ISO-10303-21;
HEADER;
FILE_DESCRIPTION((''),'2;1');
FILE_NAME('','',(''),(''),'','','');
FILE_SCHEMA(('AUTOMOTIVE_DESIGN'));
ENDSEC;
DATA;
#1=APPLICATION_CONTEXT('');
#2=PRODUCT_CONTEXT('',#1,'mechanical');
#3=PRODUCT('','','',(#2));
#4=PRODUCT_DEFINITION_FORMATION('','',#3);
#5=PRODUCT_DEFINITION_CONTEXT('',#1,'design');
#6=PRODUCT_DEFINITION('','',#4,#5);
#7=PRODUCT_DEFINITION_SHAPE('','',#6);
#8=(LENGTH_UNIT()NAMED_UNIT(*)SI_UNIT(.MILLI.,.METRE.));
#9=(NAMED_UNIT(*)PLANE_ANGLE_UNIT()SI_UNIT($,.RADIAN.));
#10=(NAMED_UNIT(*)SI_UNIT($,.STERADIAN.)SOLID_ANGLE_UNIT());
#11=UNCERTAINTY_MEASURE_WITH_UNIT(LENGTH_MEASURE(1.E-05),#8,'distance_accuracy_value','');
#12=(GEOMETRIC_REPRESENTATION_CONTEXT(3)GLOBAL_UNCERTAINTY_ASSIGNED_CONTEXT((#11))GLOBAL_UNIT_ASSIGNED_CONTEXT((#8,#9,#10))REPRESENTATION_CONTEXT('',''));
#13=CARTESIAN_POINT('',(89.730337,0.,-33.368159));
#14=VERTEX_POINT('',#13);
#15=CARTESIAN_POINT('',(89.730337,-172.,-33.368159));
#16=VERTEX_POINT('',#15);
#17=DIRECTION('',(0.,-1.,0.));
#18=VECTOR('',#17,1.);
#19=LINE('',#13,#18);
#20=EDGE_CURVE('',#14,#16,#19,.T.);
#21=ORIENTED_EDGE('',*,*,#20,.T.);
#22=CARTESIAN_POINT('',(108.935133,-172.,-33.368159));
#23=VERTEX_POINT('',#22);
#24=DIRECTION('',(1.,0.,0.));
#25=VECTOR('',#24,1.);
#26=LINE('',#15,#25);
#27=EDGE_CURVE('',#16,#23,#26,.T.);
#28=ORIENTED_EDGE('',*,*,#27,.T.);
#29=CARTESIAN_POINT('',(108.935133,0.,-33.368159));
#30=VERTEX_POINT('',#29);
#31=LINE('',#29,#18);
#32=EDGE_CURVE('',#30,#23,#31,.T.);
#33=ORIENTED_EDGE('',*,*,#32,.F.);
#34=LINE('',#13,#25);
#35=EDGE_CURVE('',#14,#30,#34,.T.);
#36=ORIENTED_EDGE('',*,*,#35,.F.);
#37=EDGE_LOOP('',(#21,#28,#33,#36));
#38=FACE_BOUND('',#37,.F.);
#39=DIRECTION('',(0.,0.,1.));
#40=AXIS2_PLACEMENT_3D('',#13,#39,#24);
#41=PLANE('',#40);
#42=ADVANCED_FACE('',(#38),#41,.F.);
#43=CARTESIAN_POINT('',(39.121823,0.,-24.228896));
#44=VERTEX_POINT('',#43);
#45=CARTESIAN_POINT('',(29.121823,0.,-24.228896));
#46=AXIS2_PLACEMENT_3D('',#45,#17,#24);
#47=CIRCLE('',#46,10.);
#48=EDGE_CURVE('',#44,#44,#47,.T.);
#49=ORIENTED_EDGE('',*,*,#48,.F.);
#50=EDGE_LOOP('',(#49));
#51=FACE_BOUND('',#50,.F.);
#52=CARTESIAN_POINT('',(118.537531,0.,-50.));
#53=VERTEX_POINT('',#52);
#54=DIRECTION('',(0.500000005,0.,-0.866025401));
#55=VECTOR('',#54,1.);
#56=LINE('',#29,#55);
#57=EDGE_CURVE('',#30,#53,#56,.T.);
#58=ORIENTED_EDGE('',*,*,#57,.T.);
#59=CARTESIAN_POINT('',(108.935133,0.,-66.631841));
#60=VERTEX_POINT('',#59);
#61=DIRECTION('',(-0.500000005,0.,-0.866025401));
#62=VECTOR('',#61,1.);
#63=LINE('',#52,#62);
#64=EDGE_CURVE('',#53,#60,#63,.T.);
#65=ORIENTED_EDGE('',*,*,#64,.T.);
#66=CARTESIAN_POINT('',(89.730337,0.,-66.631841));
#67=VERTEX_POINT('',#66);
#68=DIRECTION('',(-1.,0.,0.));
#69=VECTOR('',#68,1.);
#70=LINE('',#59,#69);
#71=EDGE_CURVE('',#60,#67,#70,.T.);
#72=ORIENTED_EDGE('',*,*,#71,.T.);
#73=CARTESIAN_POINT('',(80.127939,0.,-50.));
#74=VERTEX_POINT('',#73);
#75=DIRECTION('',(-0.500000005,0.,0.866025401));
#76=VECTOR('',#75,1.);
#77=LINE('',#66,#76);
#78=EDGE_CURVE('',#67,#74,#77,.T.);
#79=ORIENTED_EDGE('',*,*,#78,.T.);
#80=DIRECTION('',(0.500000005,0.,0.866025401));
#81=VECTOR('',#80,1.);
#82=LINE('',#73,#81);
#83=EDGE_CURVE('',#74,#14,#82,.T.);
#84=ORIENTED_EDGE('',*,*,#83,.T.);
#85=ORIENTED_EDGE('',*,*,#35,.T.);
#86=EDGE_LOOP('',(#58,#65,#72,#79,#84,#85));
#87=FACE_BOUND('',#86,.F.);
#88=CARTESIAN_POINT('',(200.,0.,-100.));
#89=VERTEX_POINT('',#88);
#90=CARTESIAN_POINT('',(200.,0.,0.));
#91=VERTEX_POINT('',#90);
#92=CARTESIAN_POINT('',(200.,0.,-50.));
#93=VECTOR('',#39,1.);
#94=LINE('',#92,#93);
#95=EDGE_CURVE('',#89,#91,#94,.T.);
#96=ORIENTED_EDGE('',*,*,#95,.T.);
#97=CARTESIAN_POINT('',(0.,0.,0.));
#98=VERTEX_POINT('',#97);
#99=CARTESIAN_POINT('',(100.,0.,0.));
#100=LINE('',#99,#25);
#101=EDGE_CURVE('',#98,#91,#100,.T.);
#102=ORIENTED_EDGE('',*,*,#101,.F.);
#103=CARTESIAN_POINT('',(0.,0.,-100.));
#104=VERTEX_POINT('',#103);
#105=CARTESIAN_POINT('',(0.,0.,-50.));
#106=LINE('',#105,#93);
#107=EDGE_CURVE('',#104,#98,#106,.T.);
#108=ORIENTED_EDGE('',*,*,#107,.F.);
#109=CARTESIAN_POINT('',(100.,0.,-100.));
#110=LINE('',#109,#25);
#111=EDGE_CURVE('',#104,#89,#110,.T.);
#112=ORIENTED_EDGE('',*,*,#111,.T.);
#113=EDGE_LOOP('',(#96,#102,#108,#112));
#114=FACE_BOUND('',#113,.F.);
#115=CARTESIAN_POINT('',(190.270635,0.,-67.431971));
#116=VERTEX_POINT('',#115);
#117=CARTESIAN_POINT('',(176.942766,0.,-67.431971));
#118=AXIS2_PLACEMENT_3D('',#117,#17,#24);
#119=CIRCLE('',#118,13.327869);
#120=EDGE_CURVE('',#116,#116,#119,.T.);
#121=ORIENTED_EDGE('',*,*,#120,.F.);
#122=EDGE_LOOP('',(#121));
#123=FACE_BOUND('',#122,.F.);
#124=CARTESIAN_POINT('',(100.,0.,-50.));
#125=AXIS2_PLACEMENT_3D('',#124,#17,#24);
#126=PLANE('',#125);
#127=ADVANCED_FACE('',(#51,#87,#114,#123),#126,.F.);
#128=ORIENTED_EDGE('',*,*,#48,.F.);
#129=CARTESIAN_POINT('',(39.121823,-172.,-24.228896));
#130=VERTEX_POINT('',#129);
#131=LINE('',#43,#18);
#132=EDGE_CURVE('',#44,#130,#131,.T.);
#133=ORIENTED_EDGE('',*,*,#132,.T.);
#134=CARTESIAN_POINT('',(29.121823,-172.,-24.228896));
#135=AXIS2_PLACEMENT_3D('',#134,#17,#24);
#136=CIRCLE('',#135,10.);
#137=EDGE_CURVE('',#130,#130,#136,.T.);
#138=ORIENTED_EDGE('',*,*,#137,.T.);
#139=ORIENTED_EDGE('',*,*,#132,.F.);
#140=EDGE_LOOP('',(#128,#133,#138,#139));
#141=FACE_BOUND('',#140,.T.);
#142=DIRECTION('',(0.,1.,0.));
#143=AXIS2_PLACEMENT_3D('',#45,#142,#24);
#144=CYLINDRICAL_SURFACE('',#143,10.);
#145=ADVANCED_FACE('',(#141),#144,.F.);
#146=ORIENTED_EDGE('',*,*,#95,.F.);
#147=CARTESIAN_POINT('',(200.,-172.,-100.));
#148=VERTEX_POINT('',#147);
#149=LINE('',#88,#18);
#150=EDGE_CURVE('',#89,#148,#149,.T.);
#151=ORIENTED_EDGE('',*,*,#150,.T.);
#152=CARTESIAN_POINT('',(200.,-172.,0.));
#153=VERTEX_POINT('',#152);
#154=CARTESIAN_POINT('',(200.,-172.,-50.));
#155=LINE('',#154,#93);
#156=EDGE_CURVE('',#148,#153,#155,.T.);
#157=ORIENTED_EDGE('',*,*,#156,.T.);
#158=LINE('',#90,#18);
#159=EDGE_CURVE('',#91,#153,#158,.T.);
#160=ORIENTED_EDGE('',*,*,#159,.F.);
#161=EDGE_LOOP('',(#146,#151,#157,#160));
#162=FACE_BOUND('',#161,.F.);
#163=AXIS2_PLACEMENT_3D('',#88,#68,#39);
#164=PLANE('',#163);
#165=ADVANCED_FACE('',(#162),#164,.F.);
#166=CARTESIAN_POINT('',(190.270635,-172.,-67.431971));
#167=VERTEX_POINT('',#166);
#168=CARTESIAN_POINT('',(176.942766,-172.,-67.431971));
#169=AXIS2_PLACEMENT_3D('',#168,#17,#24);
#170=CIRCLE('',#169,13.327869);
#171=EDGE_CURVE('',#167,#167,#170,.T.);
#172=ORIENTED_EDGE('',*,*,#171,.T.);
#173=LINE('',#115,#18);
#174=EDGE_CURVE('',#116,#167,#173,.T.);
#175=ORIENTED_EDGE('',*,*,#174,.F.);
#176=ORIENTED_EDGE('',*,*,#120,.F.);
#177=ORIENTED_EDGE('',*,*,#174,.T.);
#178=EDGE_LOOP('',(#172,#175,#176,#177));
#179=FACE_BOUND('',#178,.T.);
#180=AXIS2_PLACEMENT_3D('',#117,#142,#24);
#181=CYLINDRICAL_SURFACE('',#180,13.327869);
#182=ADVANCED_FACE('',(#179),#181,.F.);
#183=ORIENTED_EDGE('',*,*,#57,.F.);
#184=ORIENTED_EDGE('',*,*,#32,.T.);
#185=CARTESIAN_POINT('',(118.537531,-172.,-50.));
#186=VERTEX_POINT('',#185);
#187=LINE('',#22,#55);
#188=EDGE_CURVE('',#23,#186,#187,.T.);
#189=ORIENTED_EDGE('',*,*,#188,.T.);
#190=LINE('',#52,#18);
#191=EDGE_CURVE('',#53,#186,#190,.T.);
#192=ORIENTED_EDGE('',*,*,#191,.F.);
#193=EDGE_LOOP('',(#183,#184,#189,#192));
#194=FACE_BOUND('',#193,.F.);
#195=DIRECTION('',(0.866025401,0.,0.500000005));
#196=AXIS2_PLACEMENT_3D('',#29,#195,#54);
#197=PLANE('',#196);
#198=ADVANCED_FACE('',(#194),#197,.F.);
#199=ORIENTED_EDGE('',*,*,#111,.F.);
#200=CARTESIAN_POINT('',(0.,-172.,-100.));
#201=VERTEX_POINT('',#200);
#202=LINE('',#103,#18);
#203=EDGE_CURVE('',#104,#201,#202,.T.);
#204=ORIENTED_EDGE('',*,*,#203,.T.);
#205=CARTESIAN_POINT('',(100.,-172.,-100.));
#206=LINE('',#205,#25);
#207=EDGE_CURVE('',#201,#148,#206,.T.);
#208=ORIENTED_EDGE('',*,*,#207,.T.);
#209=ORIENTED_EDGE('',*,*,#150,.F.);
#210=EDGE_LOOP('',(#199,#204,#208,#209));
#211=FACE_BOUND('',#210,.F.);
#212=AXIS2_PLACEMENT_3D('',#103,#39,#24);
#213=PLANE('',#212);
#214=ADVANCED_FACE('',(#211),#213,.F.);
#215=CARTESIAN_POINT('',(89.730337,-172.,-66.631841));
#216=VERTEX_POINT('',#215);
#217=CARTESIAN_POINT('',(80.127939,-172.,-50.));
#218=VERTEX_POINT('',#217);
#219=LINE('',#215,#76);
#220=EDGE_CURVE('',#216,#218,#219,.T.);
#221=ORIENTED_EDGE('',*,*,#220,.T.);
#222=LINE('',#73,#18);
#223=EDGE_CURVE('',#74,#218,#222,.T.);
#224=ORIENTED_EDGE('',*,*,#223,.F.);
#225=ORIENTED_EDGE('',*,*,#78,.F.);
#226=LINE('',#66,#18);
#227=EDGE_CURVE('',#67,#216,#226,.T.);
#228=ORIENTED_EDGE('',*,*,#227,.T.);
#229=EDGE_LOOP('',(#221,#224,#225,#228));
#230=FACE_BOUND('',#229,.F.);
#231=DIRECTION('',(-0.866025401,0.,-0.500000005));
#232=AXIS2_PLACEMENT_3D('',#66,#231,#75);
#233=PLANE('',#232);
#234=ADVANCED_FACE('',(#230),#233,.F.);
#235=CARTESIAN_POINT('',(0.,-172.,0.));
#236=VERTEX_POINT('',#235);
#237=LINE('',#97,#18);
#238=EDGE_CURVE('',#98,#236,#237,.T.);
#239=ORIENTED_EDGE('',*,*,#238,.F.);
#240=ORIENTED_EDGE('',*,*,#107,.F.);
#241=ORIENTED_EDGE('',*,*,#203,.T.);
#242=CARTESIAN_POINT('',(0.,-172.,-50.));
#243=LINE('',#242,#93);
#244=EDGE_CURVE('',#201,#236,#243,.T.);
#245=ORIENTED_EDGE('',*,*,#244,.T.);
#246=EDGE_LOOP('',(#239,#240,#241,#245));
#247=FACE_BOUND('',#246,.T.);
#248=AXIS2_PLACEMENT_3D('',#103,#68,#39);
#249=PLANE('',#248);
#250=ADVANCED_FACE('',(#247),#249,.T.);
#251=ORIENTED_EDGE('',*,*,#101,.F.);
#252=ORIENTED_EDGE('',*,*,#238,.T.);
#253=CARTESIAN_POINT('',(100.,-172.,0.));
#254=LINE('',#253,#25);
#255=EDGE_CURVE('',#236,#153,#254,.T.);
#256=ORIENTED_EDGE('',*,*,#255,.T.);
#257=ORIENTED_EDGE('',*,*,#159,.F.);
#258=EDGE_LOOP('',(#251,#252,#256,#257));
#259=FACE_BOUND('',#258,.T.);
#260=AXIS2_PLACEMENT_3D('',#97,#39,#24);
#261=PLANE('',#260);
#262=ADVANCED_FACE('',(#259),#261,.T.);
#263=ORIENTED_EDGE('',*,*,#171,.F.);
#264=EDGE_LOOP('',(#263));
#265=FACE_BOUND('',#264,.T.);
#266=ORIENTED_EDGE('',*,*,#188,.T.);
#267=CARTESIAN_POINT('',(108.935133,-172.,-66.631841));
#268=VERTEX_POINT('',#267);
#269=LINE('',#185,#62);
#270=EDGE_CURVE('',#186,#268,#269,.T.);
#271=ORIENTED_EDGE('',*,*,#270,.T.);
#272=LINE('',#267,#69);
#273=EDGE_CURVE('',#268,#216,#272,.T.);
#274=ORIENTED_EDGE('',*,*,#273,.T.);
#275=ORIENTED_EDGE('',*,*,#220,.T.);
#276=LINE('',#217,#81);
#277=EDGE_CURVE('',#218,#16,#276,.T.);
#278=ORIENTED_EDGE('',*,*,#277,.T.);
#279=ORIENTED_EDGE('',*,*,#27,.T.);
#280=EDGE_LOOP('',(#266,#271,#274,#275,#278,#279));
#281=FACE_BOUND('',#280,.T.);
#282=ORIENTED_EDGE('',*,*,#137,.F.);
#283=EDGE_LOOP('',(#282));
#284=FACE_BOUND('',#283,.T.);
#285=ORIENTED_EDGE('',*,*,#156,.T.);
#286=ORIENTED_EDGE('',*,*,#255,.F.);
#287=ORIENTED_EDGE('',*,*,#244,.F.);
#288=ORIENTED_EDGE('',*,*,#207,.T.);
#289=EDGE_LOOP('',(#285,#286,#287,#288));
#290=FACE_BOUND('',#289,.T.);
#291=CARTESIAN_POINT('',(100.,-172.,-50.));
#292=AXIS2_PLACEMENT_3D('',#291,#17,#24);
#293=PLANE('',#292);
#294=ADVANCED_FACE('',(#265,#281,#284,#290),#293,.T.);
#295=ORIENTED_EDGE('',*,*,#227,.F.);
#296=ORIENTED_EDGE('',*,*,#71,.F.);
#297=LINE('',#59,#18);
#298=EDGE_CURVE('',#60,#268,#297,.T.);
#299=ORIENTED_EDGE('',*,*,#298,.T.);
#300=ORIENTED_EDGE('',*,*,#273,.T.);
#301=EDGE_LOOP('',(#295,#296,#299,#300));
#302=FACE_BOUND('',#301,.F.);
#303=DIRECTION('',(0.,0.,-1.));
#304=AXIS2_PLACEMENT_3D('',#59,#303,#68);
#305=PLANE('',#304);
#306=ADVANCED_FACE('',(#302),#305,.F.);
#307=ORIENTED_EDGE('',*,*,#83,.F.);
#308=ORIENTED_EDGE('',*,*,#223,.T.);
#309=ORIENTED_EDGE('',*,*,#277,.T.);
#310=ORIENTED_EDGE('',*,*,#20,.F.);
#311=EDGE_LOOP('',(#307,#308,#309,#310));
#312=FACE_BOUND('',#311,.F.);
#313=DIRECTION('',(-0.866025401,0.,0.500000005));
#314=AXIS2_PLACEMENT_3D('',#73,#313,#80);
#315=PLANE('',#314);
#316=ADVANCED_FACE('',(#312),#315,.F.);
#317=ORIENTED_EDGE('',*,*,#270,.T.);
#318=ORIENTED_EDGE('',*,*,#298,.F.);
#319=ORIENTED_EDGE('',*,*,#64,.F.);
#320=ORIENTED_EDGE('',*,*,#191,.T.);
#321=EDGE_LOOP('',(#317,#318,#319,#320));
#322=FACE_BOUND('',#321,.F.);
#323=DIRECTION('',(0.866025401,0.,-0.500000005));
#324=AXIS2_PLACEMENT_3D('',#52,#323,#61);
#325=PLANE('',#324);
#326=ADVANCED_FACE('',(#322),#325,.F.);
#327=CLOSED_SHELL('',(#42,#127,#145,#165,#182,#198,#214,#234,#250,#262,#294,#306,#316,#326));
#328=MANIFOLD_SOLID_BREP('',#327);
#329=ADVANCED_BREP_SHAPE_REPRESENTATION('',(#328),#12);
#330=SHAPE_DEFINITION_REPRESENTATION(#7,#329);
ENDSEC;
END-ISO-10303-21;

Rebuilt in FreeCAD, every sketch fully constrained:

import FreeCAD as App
import Part
import Sketcher
Q = App.Units.Quantity

doc = App.newDocument("Part")
body = doc.addObject("PartDesign::Body", "Body")

sketch1 = body.newObject("Sketcher::SketchObject", "Sketch")
sketch1.AttachmentSupport = (doc.getObject("XZ_Plane"), [""])
sketch1.MapMode = "FlatFace"
sketch1.addGeometry(Part.LineSegment(App.Vector(0, 0, 0), App.Vector(0, -100, 0)), False)
sketch1.addGeometry(Part.LineSegment(App.Vector(0, -100, 0), App.Vector(200, -100, 0)), False)
sketch1.addGeometry(Part.LineSegment(App.Vector(200, -100, 0), App.Vector(200, 0, 0)), False)
sketch1.addGeometry(Part.LineSegment(App.Vector(200, 0, 0), App.Vector(0, 0, 0)), False)
sketch1.addGeometry(Part.LineSegment(App.Vector(90, -67, 0), App.Vector(80, -50, 0)), False)
sketch1.addGeometry(Part.LineSegment(App.Vector(80, -50, 0), App.Vector(90, -33, 0)), False)
sketch1.addGeometry(Part.LineSegment(App.Vector(90, -33, 0), App.Vector(109, -33, 0)), False)
sketch1.addGeometry(Part.LineSegment(App.Vector(109, -33, 0), App.Vector(119, -50, 0)), False)
sketch1.addGeometry(Part.LineSegment(App.Vector(119, -50, 0), App.Vector(109, -67, 0)), False)
sketch1.addGeometry(Part.LineSegment(App.Vector(109, -67, 0), App.Vector(90, -67, 0)), False)
sketch1.addGeometry(Part.Circle(App.Vector(177, -67, 0), App.Vector(0, 0, 1), 13), False)
sketch1.addGeometry(Part.Circle(App.Vector(29, -24, 0), App.Vector(0, 0, 1), 10), False)
sketch1.addConstraint(Sketcher.Constraint("Coincident", 0, 2, 1, 1))
sketch1.addConstraint(Sketcher.Constraint("Coincident", 1, 2, 2, 1))
sketch1.addConstraint(Sketcher.Constraint("Coincident", 2, 2, 3, 1))
sketch1.addConstraint(Sketcher.Constraint("Coincident", 3, 2, 0, 1))
sketch1.addConstraint(Sketcher.Constraint("Coincident", 4, 2, 5, 1))
sketch1.addConstraint(Sketcher.Constraint("Coincident", 5, 2, 6, 1))
sketch1.addConstraint(Sketcher.Constraint("Coincident", 6, 2, 7, 1))
sketch1.addConstraint(Sketcher.Constraint("Coincident", 7, 2, 8, 1))
sketch1.addConstraint(Sketcher.Constraint("Coincident", 8, 2, 9, 1))
sketch1.addConstraint(Sketcher.Constraint("Coincident", 9, 2, 4, 1))
sketch1.addConstraint(Sketcher.Constraint("Vertical", 0))
sketch1.addConstraint(Sketcher.Constraint("Horizontal", 1))
sketch1.addConstraint(Sketcher.Constraint("Vertical", 2))
sketch1.addConstraint(Sketcher.Constraint("Horizontal", 3))
sketch1.addConstraint(Sketcher.Constraint("Horizontal", 6))
sketch1.addConstraint(Sketcher.Constraint("Horizontal", 9))
sketch1.addConstraint(Sketcher.Constraint("Coincident", 3, 2, -1, 1))
sketch1.addConstraint(Sketcher.Constraint("Parallel", 4, 7))
sketch1.addConstraint(Sketcher.Constraint("Parallel", 5, 8))
sketch1.addConstraint(Sketcher.Constraint("Horizontal", 4, 2, 7, 2))
sketch1.addConstraint(Sketcher.Constraint("Vertical", 6, 2, 8, 2))
sketch1.addConstraint(Sketcher.Constraint("Vertical", 5, 2, 9, 2))
sketch1.addConstraint(Sketcher.Constraint("Diameter", 11, 20.0))
sketch1.addConstraint(Sketcher.Constraint("DistanceX", 1, 1, 1, 2, 200.0))
sketch1.addConstraint(Sketcher.Constraint("DistanceY", 0, 2, 0, 1, 100.0))
sketch1.addConstraint(Sketcher.Constraint("Angle", 4, Q("120 deg")))
sketch1.addConstraint(Sketcher.Constraint("DistanceY", 4, 2, -1, 1, 50.0))
sketch1.addConstraint(Sketcher.Constraint("Diameter", 10, 26.655738))
sketch1.addConstraint(Sketcher.Constraint("DistanceX", 4, 2, 5, 2, 9.602398))
sketch1.addConstraint(Sketcher.Constraint("DistanceX", 6, 1, 6, 2, 19.204796))
sketch1.addConstraint(Sketcher.Constraint("DistanceY", 10, 3, -1, 1, 67.431971))
sketch1.addConstraint(Sketcher.Constraint("DistanceX", -1, 1, 4, 2, 80.127939))
sketch1.addConstraint(Sketcher.Constraint("DistanceX", 5, 2, 10, 3, 87.212429))
sketch1.addConstraint(Sketcher.Constraint("DistanceX", 11, 3, 6, 2, 79.81331))
sketch1.addConstraint(Sketcher.Constraint("DistanceY", 11, 3, -1, 1, 24.228896))
pad1 = body.newObject("PartDesign::Pad", "Pad")
pad1.Profile = sketch1
pad1.Length = 172

doc.recompute()
